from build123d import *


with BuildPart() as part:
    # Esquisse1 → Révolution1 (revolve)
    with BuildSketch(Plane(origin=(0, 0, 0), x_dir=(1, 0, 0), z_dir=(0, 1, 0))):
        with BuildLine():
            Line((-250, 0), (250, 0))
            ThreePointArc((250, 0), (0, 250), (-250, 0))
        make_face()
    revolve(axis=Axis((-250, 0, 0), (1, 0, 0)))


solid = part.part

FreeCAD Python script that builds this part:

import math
import FreeCAD as App
import Part
import Sketcher

V = App.Vector

doc = App.newDocument("Part")
body = doc.addObject("PartDesign::Body", "Body")

# Sketch on XZ plane
sketch1 = body.newObject("Sketcher::SketchObject", "Sketch")
sketch1.AttachmentSupport = (doc.getObject("XZ_Plane"), [""])
sketch1.MapMode = "FlatFace"
sketch1.addGeometry([
    Part.LineSegment(V(-250, 0, 0), V(250, 0, 0)),
    Part.ArcOfCircle(Part.Circle(V(0, 0, 0), V(0, 0, 1), 250), math.radians(180), math.radians(360)),
], False)
sketch1.addConstraint([
    Sketcher.Constraint("Coincident", 0, 1, 1, 1),
    Sketcher.Constraint("Coincident", 1, 2, 0, 2),
    Sketcher.Constraint("Horizontal", 0),
    Sketcher.Constraint("Coincident", 1, 3, -1, 1),
    Sketcher.Constraint("PointOnObject", 0, 1, -1),
    Sketcher.Constraint("Radius", 1, 250.0),
])
revolution = body.newObject("PartDesign::Revolution", "Revolution")
revolution.Profile = sketch1
revolution.ReferenceAxis = (sketch1, ["H_Axis"])
revolution.Angle = 360

doc.recompute()
